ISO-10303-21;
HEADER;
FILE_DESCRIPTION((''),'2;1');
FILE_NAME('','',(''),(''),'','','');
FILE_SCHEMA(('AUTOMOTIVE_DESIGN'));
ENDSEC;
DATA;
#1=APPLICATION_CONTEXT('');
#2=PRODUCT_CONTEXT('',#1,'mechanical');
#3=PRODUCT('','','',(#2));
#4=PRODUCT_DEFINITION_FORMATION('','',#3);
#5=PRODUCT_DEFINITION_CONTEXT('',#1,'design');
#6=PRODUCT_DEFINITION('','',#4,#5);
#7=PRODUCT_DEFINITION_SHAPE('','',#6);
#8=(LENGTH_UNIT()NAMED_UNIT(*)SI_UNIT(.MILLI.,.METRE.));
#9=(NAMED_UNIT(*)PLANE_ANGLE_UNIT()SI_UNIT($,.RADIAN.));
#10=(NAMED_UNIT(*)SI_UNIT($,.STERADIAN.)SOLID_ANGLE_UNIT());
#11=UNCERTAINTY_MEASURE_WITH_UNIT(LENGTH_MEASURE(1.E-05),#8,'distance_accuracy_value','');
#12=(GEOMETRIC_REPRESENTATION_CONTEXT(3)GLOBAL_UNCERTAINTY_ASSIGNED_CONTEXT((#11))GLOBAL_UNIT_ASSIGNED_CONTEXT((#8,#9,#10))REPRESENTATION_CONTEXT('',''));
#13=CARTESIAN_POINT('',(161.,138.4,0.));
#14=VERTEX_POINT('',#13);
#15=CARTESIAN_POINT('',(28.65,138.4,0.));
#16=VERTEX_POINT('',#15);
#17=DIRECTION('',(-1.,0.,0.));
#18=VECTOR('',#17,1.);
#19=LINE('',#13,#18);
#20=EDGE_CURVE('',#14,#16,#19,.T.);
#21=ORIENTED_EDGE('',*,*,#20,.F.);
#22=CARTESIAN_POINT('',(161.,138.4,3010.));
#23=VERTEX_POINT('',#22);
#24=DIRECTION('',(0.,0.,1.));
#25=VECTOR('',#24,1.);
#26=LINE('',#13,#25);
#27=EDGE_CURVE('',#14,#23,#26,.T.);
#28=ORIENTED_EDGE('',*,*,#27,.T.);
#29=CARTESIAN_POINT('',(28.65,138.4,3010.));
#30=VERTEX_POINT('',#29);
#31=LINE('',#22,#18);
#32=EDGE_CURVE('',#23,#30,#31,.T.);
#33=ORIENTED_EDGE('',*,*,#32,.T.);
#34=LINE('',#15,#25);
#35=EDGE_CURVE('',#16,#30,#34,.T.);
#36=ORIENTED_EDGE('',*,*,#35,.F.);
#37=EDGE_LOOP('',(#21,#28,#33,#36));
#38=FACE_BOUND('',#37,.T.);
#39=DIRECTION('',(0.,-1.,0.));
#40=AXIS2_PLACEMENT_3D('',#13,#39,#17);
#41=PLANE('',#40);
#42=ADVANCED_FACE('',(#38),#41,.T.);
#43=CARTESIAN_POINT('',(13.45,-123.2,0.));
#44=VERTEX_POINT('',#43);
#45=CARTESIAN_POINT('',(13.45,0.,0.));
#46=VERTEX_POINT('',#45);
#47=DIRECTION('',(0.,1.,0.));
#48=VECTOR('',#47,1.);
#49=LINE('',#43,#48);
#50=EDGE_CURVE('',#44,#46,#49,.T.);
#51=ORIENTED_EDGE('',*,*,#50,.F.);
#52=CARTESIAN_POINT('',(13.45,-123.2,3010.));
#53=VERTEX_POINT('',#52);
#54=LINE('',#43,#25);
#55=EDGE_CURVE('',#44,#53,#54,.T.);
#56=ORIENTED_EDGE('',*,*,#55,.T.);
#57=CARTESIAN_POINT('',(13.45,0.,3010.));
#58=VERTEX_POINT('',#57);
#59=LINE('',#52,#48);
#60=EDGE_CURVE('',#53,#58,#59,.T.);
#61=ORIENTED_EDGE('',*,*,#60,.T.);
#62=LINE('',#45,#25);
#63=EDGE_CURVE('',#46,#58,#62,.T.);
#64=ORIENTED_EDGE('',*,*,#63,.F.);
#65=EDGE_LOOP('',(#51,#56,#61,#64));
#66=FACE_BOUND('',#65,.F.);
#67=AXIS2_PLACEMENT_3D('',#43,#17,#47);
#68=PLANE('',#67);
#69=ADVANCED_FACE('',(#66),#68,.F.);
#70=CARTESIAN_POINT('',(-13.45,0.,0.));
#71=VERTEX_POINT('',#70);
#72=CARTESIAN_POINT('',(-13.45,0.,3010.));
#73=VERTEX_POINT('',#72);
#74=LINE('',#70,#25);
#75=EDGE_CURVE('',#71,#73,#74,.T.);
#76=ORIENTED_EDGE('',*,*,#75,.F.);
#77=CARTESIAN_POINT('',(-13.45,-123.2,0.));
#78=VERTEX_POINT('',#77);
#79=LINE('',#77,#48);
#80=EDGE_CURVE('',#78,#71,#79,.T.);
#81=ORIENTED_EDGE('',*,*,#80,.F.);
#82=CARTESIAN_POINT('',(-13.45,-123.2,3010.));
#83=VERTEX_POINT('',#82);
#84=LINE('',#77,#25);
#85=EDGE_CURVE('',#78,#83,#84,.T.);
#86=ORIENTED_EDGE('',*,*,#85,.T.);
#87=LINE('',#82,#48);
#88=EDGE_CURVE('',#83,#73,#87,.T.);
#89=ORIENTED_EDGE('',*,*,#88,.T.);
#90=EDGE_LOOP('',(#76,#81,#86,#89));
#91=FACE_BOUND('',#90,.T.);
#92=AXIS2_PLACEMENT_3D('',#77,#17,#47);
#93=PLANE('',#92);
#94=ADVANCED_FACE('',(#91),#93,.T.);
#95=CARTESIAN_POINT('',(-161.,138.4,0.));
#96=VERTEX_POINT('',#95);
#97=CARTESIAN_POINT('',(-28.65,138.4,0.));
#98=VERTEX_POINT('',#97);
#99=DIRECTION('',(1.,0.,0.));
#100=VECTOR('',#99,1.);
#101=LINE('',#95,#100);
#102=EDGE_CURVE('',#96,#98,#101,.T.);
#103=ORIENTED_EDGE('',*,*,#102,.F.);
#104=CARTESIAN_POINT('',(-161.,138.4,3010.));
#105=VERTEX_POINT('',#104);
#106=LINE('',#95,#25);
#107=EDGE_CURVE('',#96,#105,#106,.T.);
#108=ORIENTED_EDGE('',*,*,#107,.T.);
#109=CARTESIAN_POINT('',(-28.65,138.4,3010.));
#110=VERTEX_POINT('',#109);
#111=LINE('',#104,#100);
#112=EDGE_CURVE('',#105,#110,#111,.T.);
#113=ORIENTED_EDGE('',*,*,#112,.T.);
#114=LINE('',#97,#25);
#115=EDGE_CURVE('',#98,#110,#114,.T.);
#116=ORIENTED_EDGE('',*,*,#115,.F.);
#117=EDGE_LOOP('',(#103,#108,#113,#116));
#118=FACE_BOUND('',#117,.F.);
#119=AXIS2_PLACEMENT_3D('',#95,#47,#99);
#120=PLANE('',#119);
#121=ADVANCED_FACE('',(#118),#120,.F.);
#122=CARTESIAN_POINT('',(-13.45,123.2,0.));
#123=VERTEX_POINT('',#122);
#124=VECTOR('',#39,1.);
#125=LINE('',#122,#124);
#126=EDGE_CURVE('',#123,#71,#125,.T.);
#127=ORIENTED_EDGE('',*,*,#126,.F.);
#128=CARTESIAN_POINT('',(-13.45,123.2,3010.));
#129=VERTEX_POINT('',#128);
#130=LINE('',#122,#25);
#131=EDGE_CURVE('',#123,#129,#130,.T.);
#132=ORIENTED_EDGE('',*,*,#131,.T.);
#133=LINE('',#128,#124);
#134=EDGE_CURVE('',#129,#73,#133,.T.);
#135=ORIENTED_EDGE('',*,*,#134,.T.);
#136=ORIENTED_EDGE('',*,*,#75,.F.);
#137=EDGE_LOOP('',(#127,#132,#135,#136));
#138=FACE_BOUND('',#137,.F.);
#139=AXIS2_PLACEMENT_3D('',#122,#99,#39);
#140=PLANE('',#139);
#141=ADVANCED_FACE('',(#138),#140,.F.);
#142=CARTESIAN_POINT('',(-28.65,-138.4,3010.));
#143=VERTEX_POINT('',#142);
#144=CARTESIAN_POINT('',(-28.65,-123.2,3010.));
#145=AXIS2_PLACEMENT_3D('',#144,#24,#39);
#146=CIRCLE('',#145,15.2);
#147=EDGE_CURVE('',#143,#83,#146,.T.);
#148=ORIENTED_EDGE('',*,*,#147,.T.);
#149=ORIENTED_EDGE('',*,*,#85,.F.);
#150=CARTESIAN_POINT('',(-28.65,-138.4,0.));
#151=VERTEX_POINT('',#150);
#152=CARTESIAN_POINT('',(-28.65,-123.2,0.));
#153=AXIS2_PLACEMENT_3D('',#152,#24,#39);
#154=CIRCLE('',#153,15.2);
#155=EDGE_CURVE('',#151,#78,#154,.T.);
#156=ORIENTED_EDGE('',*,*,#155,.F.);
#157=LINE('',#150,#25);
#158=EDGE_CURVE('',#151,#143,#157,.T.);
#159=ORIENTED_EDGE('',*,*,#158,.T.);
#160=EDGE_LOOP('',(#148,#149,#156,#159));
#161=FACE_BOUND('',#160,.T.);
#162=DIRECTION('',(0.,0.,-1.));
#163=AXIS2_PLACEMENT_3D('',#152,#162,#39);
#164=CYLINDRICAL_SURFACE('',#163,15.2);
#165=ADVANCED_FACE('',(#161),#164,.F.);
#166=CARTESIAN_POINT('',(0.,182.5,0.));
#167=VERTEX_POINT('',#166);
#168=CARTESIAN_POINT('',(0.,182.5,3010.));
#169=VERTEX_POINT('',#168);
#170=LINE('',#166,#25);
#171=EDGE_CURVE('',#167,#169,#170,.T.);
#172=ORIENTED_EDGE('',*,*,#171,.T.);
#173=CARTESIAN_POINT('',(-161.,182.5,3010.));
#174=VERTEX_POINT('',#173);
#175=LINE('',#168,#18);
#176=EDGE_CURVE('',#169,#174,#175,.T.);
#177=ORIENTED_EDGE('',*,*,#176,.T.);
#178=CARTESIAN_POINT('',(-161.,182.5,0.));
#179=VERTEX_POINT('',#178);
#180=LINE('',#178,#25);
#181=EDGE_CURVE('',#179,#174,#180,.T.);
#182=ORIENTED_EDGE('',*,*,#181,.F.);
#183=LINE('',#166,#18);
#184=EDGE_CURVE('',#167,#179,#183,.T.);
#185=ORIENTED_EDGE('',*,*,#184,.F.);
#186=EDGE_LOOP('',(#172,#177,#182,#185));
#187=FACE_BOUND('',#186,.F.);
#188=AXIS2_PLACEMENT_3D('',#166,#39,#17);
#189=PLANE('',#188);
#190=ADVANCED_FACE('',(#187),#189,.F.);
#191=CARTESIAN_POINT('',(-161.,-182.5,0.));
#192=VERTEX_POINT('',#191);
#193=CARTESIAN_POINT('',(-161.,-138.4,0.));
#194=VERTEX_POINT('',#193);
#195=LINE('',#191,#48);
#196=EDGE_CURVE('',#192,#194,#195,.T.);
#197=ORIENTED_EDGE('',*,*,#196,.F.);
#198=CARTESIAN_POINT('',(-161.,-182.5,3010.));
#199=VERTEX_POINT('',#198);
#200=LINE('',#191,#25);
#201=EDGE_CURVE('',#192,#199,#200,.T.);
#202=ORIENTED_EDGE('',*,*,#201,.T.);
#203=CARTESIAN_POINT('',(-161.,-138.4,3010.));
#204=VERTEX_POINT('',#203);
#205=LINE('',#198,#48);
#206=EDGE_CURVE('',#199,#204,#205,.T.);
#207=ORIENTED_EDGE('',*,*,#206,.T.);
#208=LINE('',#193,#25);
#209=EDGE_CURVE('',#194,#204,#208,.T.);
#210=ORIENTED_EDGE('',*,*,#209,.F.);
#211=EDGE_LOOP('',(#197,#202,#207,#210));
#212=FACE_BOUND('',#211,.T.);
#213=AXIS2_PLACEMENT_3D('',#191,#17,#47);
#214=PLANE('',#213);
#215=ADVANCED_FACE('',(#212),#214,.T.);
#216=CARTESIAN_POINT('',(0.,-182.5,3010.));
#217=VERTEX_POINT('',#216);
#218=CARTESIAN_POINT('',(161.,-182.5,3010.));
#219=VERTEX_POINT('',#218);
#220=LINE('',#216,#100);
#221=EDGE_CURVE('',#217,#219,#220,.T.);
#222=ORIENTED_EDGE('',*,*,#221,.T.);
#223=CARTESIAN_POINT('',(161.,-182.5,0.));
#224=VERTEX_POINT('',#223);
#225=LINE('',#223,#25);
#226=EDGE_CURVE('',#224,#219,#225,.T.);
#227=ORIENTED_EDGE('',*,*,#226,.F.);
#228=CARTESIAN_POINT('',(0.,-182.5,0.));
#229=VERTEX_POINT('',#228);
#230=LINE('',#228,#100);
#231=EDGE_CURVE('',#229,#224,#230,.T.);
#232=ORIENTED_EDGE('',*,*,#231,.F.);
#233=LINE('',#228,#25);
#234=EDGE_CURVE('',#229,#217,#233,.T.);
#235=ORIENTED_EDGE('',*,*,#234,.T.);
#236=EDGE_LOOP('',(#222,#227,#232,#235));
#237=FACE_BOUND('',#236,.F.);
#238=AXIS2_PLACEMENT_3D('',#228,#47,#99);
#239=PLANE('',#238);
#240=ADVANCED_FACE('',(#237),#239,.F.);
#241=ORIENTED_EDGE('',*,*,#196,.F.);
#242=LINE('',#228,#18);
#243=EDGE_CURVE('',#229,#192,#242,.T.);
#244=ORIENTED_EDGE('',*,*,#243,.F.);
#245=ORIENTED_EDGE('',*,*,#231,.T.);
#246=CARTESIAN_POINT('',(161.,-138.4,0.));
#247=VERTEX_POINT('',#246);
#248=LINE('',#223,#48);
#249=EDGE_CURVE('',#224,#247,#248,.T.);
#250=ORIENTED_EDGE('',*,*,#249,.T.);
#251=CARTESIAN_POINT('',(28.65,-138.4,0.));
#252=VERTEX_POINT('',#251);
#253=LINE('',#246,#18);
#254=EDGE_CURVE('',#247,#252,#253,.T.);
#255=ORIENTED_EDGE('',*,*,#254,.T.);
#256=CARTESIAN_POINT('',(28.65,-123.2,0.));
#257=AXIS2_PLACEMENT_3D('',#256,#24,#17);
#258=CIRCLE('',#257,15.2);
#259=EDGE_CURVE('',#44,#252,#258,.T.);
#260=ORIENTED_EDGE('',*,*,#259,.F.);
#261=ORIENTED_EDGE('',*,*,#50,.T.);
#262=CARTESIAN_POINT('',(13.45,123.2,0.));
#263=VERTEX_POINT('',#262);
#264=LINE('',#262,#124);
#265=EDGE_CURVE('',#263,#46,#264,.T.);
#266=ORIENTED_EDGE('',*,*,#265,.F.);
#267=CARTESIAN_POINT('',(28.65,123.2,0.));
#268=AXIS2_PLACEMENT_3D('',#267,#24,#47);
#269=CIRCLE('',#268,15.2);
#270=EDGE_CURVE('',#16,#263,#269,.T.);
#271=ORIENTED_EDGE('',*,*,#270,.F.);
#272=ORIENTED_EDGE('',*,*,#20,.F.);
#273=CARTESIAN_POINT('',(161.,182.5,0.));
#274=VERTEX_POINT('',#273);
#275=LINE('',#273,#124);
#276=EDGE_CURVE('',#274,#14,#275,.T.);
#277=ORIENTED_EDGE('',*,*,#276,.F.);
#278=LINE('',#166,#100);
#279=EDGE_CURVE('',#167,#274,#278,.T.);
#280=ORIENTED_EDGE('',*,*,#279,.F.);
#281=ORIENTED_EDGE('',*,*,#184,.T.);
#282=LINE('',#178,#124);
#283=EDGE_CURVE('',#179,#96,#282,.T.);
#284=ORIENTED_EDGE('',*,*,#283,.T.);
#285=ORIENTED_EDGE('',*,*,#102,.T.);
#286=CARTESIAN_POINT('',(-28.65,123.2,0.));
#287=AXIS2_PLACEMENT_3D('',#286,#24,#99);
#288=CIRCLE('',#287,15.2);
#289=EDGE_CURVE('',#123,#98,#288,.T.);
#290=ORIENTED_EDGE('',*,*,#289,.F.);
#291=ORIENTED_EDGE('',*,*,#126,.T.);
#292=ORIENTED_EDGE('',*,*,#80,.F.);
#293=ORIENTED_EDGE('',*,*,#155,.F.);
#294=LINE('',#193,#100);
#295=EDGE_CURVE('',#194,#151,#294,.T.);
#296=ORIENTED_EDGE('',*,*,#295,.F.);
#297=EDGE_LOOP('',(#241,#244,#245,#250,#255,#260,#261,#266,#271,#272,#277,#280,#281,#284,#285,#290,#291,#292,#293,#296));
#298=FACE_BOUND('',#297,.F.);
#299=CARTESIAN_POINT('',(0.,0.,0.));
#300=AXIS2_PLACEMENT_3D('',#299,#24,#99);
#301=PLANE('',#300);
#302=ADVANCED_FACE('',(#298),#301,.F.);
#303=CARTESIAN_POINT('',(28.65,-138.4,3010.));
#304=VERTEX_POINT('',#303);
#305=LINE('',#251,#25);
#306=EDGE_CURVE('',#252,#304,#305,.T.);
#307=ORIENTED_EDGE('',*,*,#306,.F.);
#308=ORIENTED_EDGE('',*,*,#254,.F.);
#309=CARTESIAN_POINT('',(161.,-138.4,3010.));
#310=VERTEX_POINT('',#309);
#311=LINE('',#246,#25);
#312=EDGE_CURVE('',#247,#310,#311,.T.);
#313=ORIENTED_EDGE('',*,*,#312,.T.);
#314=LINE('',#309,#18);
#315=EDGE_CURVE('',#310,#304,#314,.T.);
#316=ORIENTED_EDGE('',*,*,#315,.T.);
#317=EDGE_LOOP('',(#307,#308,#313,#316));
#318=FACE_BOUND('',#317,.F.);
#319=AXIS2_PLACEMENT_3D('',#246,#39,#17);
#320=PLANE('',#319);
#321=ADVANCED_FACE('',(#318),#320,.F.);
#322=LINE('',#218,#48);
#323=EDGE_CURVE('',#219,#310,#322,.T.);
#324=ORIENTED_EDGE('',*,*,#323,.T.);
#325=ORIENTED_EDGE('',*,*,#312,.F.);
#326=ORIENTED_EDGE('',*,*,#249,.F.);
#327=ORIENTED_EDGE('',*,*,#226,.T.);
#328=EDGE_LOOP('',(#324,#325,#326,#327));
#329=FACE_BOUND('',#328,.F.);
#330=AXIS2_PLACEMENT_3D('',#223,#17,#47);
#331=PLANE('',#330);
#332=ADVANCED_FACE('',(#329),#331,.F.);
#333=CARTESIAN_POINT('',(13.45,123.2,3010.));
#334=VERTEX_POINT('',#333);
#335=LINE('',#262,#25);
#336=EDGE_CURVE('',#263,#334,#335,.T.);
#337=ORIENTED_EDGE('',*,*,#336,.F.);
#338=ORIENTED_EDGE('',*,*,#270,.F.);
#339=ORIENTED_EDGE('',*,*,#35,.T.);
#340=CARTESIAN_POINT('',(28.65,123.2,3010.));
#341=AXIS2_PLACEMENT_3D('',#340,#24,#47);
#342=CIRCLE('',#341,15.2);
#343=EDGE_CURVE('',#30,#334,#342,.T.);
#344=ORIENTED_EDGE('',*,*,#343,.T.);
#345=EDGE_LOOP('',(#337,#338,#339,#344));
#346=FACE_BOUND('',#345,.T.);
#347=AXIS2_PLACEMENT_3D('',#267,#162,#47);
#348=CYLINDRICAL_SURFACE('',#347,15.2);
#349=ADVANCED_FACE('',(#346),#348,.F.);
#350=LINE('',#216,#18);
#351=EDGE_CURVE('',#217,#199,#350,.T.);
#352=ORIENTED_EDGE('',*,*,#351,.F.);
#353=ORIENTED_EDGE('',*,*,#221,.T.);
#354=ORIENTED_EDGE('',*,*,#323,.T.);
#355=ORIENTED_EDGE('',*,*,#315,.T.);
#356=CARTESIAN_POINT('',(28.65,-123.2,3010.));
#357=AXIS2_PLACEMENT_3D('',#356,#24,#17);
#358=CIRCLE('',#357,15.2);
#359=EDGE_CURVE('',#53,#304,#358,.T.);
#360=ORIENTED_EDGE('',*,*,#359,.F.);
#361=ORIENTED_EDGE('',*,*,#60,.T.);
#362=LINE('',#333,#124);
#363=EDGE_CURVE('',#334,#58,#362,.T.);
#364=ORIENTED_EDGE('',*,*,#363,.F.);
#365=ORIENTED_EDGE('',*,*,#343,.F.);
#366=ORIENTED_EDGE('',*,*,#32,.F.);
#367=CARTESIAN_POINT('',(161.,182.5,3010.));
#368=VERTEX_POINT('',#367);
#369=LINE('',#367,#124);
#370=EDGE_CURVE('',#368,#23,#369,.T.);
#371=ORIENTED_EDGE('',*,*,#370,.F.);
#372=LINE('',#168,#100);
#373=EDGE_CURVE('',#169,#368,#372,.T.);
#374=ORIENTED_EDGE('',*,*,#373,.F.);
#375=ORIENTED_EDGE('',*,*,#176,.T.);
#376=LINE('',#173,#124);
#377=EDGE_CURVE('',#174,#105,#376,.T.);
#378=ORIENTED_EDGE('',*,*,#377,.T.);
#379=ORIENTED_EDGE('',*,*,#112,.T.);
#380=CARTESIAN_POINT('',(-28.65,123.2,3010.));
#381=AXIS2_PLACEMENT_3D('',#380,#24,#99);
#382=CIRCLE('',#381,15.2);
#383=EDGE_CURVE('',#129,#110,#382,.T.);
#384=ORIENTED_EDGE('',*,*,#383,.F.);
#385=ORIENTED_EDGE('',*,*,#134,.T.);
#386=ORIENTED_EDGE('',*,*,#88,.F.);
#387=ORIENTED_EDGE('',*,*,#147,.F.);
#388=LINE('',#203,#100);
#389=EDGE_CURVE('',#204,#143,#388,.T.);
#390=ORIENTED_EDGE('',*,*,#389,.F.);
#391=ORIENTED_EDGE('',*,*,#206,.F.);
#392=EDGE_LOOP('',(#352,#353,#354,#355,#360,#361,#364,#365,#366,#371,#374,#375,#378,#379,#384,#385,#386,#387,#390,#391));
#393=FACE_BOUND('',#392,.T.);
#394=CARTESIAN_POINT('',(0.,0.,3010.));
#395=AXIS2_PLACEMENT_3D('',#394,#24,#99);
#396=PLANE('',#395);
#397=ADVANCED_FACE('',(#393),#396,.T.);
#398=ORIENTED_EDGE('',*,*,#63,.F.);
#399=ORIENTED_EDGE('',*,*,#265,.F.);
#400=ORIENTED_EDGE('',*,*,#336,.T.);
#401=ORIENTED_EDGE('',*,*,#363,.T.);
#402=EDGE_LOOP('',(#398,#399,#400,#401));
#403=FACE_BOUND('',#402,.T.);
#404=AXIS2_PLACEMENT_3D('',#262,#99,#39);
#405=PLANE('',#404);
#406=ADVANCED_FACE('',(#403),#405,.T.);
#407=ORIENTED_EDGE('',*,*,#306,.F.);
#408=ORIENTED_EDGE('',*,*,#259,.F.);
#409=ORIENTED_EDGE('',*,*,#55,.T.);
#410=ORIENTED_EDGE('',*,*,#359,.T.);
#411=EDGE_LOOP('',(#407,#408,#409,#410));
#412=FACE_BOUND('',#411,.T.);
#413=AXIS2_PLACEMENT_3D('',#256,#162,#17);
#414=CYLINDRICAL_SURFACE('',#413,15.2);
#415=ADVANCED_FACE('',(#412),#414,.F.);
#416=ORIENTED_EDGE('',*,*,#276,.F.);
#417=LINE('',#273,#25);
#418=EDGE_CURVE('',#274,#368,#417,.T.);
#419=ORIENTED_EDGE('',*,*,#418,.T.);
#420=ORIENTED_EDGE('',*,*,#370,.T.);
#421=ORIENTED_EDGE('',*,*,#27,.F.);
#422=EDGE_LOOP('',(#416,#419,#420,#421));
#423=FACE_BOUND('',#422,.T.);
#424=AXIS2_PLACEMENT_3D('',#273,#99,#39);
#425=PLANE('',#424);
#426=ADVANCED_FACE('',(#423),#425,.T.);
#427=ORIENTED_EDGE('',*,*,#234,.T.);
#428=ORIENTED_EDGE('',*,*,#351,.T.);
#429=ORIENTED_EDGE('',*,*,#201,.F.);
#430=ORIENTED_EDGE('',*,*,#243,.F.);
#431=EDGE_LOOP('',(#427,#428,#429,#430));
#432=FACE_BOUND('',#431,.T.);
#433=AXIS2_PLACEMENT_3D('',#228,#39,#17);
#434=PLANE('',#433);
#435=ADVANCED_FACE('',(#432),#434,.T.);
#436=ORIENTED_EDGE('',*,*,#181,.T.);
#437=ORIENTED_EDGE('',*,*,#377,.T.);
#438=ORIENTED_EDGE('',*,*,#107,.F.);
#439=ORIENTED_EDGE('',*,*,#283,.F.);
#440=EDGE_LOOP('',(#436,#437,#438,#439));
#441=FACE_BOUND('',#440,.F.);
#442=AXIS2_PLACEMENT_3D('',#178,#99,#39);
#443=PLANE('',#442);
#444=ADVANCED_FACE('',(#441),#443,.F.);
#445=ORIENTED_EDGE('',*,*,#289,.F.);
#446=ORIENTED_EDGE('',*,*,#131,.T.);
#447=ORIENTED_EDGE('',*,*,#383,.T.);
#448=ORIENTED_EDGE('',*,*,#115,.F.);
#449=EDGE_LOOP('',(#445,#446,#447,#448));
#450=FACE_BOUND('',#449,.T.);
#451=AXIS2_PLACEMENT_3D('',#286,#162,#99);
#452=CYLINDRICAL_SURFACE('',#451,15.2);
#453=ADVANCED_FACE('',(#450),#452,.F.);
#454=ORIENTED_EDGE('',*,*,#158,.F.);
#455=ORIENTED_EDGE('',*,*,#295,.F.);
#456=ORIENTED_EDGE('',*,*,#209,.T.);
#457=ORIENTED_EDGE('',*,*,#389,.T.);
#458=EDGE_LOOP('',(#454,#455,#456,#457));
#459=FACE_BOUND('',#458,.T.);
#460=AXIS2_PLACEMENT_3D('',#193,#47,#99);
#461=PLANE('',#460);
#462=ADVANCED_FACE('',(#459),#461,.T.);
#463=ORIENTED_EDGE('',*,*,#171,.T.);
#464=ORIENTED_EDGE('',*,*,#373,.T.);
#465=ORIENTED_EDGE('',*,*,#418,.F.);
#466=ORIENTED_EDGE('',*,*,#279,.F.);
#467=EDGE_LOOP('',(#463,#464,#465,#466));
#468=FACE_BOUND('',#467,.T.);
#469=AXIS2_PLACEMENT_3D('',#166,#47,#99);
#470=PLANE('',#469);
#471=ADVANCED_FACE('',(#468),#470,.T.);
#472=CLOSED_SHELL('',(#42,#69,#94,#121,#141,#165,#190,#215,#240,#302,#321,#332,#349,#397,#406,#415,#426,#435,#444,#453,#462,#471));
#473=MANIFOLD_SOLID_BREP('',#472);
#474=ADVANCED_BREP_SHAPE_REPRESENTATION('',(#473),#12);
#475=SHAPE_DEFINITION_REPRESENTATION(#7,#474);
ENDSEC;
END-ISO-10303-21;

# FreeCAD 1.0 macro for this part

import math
import FreeCAD as App
import Part
import Sketcher
from FreeCAD import Vector

doc = App.newDocument("Part")
body = doc.addObject("PartDesign::Body", "Body")

# Sketch on XY plane
sketch1 = body.newObject("Sketcher::SketchObject", "Sketch")
sketch1.AttachmentSupport = (doc.getObject("XY_Plane"), [""])
sketch1.MapMode = "FlatFace"
sketch1.addGeometry(Part.LineSegment(Vector(-161, -138, 0), Vector(-161, -182, 0)), False)
sketch1.addGeometry(Part.LineSegment(Vector(-161, -182, 0), Vector(161, -182, 0)), False)
sketch1.addGeometry(Part.LineSegment(Vector(161, -182, 0), Vector(161, -138, 0)), False)
sketch1.addGeometry(Part.LineSegment(Vector(161, -138, 0), Vector(29, -138, 0)), False)
sketch1.addGeometry(Part.ArcOfCircle(Part.Circle(Vector(29, -123, 0), Vector(0, 0, 1), 15), math.radians(180), math.radians(270)), False)
sketch1.addGeometry(Part.LineSegment(Vector(13, -123, 0), Vector(13, 123, 0)), False)
sketch1.addGeometry(Part.ArcOfCircle(Part.Circle(Vector(29, 123, 0), Vector(0, 0, 1), 15), math.radians(90), math.radians(180)), False)
sketch1.addGeometry(Part.LineSegment(Vector(29, 138, 0), Vector(161, 138, 0)), False)
sketch1.addGeometry(Part.LineSegment(Vector(161, 138, 0), Vector(161, 182, 0)), False)
sketch1.addGeometry(Part.LineSegment(Vector(161, 182, 0), Vector(-161, 182, 0)), False)
sketch1.addGeometry(Part.LineSegment(Vector(-161, 182, 0), Vector(-161, 138, 0)), False)
sketch1.addGeometry(Part.LineSegment(Vector(-161, 138, 0), Vector(-29, 138, 0)), False)
sketch1.addGeometry(Part.ArcOfCircle(Part.Circle(Vector(-29, 123, 0), Vector(0, 0, 1), 15), math.radians(0), math.radians(90)), False)
sketch1.addGeometry(Part.LineSegment(Vector(-13, 123, 0), Vector(-13, -123, 0)), False)
sketch1.addGeometry(Part.ArcOfCircle(Part.Circle(Vector(-29, -123, 0), Vector(0, 0, 1), 15), math.radians(-90), math.radians(0)), False)
sketch1.addGeometry(Part.LineSegment(Vector(-29, -138, 0), Vector(-161, -138, 0)), False)
sketch1.addConstraint(Sketcher.Constraint("Coincident", 0, 2, 1, 1))
sketch1.addConstraint(Sketcher.Constraint("Coincident", 1, 2, 2, 1))
sketch1.addConstraint(Sketcher.Constraint("Coincident", 2, 2, 3, 1))
sketch1.addConstraint(Sketcher.Constraint("Tangent", 3, 2, 4, 2))
sketch1.addConstraint(Sketcher.Constraint("Tangent", 4, 1, 5, 1))
sketch1.addConstraint(Sketcher.Constraint("Tangent", 5, 2, 6, 2))
sketch1.addConstraint(Sketcher.Constraint("Tangent", 6, 1, 7, 1))
sketch1.addConstraint(Sketcher.Constraint("Coincident", 7, 2, 8, 1))
sketch1.addConstraint(Sketcher.Constraint("Coincident", 8, 2, 9, 1))
sketch1.addConstraint(Sketcher.Constraint("Coincident", 9, 2, 10, 1))
sketch1.addConstraint(Sketcher.Constraint("Coincident", 10, 2, 11, 1))
sketch1.addConstraint(Sketcher.Constraint("Tangent", 11, 2, 12, 2))
sketch1.addConstraint(Sketcher.Constraint("Tangent", 12, 1, 13, 1))
sketch1.addConstraint(Sketcher.Constraint("Tangent", 13, 2, 14, 2))
sketch1.addConstraint(Sketcher.Constraint("Tangent", 14, 1, 15, 1))
sketch1.addConstraint(Sketcher.Constraint("Coincident", 15, 2, 0, 1))
sketch1.addConstraint(Sketcher.Constraint("Vertical", 0))
sketch1.addConstraint(Sketcher.Constraint("Horizontal", 1))
sketch1.addConstraint(Sketcher.Constraint("Vertical", 2))
sketch1.addConstraint(Sketcher.Constraint("Horizontal", 3))
sketch1.addConstraint(Sketcher.Constraint("Vertical", 5))
sketch1.addConstraint(Sketcher.Constraint("Horizontal", 7))
sketch1.addConstraint(Sketcher.Constraint("Vertical", 8))
sketch1.addConstraint(Sketcher.Constraint("Horizontal", 9))
sketch1.addConstraint(Sketcher.Constraint("Vertical", 10))
sketch1.addConstraint(Sketcher.Constraint("Horizontal", 11))
sketch1.addConstraint(Sketcher.Constraint("Vertical", 13))
sketch1.addConstraint(Sketcher.Constraint("Horizontal", 15))
sketch1.addConstraint(Sketcher.Constraint("Equal", 4, 6))
sketch1.addConstraint(Sketcher.Constraint("Equal", 6, 12))
sketch1.addConstraint(Sketcher.Constraint("Equal", 12, 14))
sketch1.addConstraint(Sketcher.Constraint("Symmetric", 4, 3, 12, 3, -1, 1))
sketch1.addConstraint(Sketcher.Constraint("Symmetric", 0, 2, 8, 2, -1, 1))
sketch1.addConstraint(Sketcher.Constraint("Symmetric", 7, 2, 10, 2, -2))
sketch1.addConstraint(Sketcher.Constraint("Symmetric", 2, 2, 15, 2, -2))
sketch1.addConstraint(Sketcher.Constraint("Radius", 4, 15.2))
sketch1.addConstraint(Sketcher.Constraint("DistanceY", 0, 2, 0, 1, 44.1))
sketch1.addConstraint(Sketcher.Constraint("DistanceX", 0, 2, -1, 1, 161.0))
sketch1.addConstraint(Sketcher.Constraint("DistanceY", 0, 2, -1, 1, 182.5))
sketch1.addConstraint(Sketcher.Constraint("DistanceX", -1, 1, 4, 1, 13.45))
pad1 = body.newObject("PartDesign::Pad", "Pad")
pad1.Profile = sketch1
pad1.Length = 3010

doc.recompute()
